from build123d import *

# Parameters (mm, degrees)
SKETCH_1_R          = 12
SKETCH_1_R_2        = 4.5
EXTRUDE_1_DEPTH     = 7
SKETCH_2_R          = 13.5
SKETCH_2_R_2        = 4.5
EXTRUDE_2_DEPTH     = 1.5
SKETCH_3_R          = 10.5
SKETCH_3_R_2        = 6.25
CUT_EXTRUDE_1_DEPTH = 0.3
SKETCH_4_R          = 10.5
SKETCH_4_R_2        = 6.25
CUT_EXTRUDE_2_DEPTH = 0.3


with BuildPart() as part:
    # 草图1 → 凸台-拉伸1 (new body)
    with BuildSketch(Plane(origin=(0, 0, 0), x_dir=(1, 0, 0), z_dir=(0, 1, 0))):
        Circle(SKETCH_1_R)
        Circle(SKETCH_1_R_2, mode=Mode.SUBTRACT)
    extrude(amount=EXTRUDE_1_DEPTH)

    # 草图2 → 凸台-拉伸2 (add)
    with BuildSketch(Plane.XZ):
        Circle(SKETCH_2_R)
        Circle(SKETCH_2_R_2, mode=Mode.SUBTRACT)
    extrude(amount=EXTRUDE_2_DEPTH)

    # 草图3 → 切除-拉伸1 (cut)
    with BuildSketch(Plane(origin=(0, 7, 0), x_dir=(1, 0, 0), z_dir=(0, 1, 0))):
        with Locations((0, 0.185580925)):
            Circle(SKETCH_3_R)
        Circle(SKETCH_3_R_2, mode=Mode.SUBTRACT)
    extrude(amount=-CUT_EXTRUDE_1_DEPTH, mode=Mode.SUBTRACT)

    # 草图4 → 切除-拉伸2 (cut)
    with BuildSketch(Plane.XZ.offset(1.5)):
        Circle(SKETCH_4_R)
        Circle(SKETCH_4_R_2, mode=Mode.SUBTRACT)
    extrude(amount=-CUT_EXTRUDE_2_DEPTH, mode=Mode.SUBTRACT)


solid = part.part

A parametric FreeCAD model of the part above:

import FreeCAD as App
import Part
import Sketcher
Q = App.Units.Quantity

doc = App.newDocument("Part")
body = doc.addObject("PartDesign::Body", "Body")

# Sketch on XZ plane
sketch1 = doc.addObject("Sketcher::SketchObject", "Sketch")
body.addObject(sketch1)
sketch1.AttachmentSupport = (doc.XZ_Plane, [""])
sketch1.MapMode = "FlatFace"
sketch1.addGeometry([
    Part.Circle(App.Vector(0, 0, 0), App.Vector(0, 0, 1), 12),
    Part.Circle(App.Vector(0, 0, 0), App.Vector(0, 0, 1), 4.5),
], False)
sketch1.addConstraint([
    Sketcher.Constraint("Coincident", 0, 3, -1, 1),
    Sketcher.Constraint("Coincident", 1, 3, -1, 1),
    Sketcher.Constraint("Diameter", 0, Q("24 mm")),
    Sketcher.Constraint("Diameter", 1, Q("9 mm")),
])
pad1 = doc.addObject("PartDesign::Pad", "Pad")
body.addObject(pad1)
pad1.Profile = sketch1
pad1.Length = 7
pad1.Reversed = True

# Sketch on XZ plane
sketch2 = doc.addObject("Sketcher::SketchObject", "Sketch001")
body.addObject(sketch2)
sketch2.AttachmentSupport = (doc.XZ_Plane, [""])
sketch2.MapMode = "FlatFace"
sketch2.addGeometry([
    Part.Circle(App.Vector(0, 0, 0), App.Vector(0, 0, 1), 13.5),
    Part.Circle(App.Vector(0, 0, 0), App.Vector(0, 0, 1), 4.5),
], False)
sketch2.addConstraint([
    Sketcher.Constraint("Coincident", 0, 3, -1, 1),
    Sketcher.Constraint("Coincident", 1, 3, -1, 1),
    Sketcher.Constraint("Diameter", 0, Q("27 mm")),
    Sketcher.Constraint("Diameter", 1, Q("9 mm")),
])
pad2 = doc.addObject("PartDesign::Pad", "Pad001")
body.addObject(pad2)
pad2.Profile = sketch2
pad2.Length = 1.5

# Sketch on XZ plane
sketch3 = doc.addObject("Sketcher::SketchObject", "Sketch002")
body.addObject(sketch3)
sketch3.AttachmentSupport = (doc.XZ_Plane, [""])
sketch3.MapMode = "FlatFace"
sketch3.AttachmentOffset = App.Placement(App.Vector(0, 0, -7), App.Rotation())
sketch3.addGeometry([
    Part.Circle(App.Vector(0, 0, 0), App.Vector(0, 0, 1), 10),
    Part.Circle(App.Vector(0, 0, 0), App.Vector(0, 0, 1), 6),
], False)
sketch3.addConstraint([
    Sketcher.Constraint("Coincident", 1, 3, -1, 1),
    Sketcher.Constraint("PointOnObject", 0, 3, -2),
    Sketcher.Constraint("Diameter", 0, Q("21 mm")),
    Sketcher.Constraint("Diameter", 1, Q("12.5 mm")),
    Sketcher.Constraint("DistanceY", 0, 3, -1, 1, Q("0.185581 mm")),
])
pocket1 = doc.addObject("PartDesign::Pocket", "Pocket")
body.addObject(pocket1)
pocket1.Profile = sketch3
pocket1.Length = 0.3
pocket1.Reversed = True

# Sketch on XZ plane
sketch4 = doc.addObject("Sketcher::SketchObject", "Sketch003")
body.addObject(sketch4)
sketch4.AttachmentSupport = (doc.XZ_Plane, [""])
sketch4.MapMode = "FlatFace"
sketch4.AttachmentOffset = App.Placement(App.Vector(0, 0, 1.5), App.Rotation())
sketch4.addGeometry([
    Part.Circle(App.Vector(0, 0, 0), App.Vector(0, 0, 1), 10),
    Part.Circle(App.Vector(0, 0, 0), App.Vector(0, 0, 1), 6),
], False)
sketch4.addConstraint([
    Sketcher.Constraint("Coincident", 0, 3, -1, 1),
    Sketcher.Constraint("Coincident", 1, 3, -1, 1),
    Sketcher.Constraint("Diameter", 0, Q("21 mm")),
    Sketcher.Constraint("Diameter", 1, Q("12.5 mm")),
])
pocket2 = doc.addObject("PartDesign::Pocket", "Pocket001")
body.addObject(pocket2)
pocket2.Profile = sketch4
pocket2.Length = 0.3

doc.recompute()
